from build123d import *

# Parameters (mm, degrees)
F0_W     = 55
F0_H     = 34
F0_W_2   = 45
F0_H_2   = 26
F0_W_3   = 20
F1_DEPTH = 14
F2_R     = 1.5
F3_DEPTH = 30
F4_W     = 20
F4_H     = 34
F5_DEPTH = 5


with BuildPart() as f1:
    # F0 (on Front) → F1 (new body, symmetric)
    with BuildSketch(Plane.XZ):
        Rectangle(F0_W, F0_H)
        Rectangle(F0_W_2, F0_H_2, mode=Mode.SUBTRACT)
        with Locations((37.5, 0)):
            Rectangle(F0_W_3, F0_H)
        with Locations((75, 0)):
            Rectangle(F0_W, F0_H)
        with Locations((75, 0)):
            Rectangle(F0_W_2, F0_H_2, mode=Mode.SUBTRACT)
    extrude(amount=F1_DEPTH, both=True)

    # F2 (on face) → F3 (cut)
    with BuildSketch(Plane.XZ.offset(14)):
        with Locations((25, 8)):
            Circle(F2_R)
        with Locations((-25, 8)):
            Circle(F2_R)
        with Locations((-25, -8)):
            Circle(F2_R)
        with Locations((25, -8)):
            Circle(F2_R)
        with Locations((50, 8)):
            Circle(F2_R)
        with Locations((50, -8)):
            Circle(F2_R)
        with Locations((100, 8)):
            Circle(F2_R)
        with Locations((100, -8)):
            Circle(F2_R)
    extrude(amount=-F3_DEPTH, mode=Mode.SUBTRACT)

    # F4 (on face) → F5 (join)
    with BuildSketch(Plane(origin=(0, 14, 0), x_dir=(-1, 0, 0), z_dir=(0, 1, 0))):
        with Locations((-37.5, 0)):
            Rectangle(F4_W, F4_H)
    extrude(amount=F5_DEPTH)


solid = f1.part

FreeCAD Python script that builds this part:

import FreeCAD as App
import Part
import Sketcher
from FreeCAD import Vector
Q = App.Units.Quantity


def add_polygon(sketch, points):
    """Adds a closed chain of lines whose ends are joined by coincident constraints."""
    first, n = sketch.GeometryCount, len(points)
    for a, b in zip(points, points[1:] + points[:1]):
        sketch.addGeometry(Part.LineSegment(App.Vector(*a, 0), App.Vector(*b, 0)), False)
    for i in range(n):
        sketch.addConstraint(Sketcher.Constraint("Coincident", first + i, 2, first + (i + 1) % n, 1))

doc = App.newDocument("Part")
params = doc.addObject("Spreadsheet::Sheet", "Params")
for row, (alias, value) in enumerate([
    ("sketch1_width", "130 mm"),
    ("sketch1_width2", "45 mm"),
    ("sketch1_height", "34 mm"),
    ("sketch1_height2", "26 mm"),
    ("pad1_length", "28 mm"),
    ("sketch2_diameter", "3 mm"),
    ("pocket1_length", "30 mm"),
    ("sketch3_width", "20 mm"),
    ("sketch3_height", "34 mm"),
    ("pad2_length", "5 mm"),
], start=1):
    params.set(f"A{row}", alias)
    params.set(f"B{row}", "=" + value)
    params.setAlias(f"B{row}", alias)

body = doc.addObject("PartDesign::Body", "Body")

sketch1 = body.newObject("Sketcher::SketchObject", "Sketch")
sketch1.AttachmentSupport = (doc.getObject("XZ_Plane"), [""])
sketch1.MapMode = "FlatFace"
add_polygon(sketch1, [(-28, 17), (-28, -17), (102, -17), (102, 17)])
add_polygon(sketch1, [(22, -13), (-22, -13), (-22, 13), (22, 13)])
add_polygon(sketch1, [(98, -13), (52, -13), (52, 13), (98, 13)])
sketch1.addConstraint([
    Sketcher.Constraint("Vertical", 0),
    Sketcher.Constraint("Horizontal", 1),
    Sketcher.Constraint("Vertical", 2),
    Sketcher.Constraint("Horizontal", 3),
    Sketcher.Constraint("Horizontal", 4),
    Sketcher.Constraint("Vertical", 5),
    Sketcher.Constraint("Horizontal", 6),
    Sketcher.Constraint("Vertical", 7),
    Sketcher.Constraint("Horizontal", 8),
    Sketcher.Constraint("Vertical", 9),
    Sketcher.Constraint("Horizontal", 10),
    Sketcher.Constraint("Vertical", 11),
    Sketcher.Constraint("Symmetric", 4, 2, 6, 2, -1, 1),
    Sketcher.Constraint("Horizontal", 7, 2, 8, 2),
    Sketcher.Constraint("Horizontal", 6, 2, 9, 2),
    Sketcher.Constraint("Equal", 6, 8),
    Sketcher.Constraint("DistanceX", 1, 1, 1, 2, Q("130 mm")),
    Sketcher.Constraint("DistanceX", 4, 2, 4, 1, Q("45 mm")),
    Sketcher.Constraint("DistanceY", 0, 2, 0, 1, Q("34 mm")),
    Sketcher.Constraint("DistanceY", 5, 1, 5, 2, Q("26 mm")),
    Sketcher.Constraint("DistanceY", 0, 2, -1, 1, Q("17 mm")),
    Sketcher.Constraint("DistanceX", 0, 2, 4, 2, Q("5 mm")),
    Sketcher.Constraint("DistanceX", 7, 2, 8, 2, Q("30 mm")),
])
sketch1.setExpression("Constraints[28]", "Params.sketch1_width")
sketch1.setExpression("Constraints[29]", "Params.sketch1_width2")
sketch1.setExpression("Constraints[30]", "Params.sketch1_height")
sketch1.setExpression("Constraints[31]", "Params.sketch1_height2")
pad1 = body.newObject("PartDesign::Pad", "Pad")
pad1.Profile = sketch1
pad1.setExpression("Length", "Params.pad1_length")
pad1.Midplane = True

sketch2 = body.newObject("Sketcher::SketchObject", "Sketch001")
sketch2.AttachmentSupport = (doc.getObject("XZ_Plane"), [""])
sketch2.MapMode = "FlatFace"
sketch2.AttachmentOffset = App.Placement(Vector(0, 0, 14), App.Rotation())
sketch2.addGeometry([
    Part.Circle(Vector(25, 8, 0), Vector(0, 0, 1), 1.5),
    Part.Circle(Vector(-25, 8, 0), Vector(0, 0, 1), 1.5),
    Part.Circle(Vector(-25, -8, 0), Vector(0, 0, 1), 1.5),
    Part.Circle(Vector(25, -8, 0), Vector(0, 0, 1), 1.5),
    Part.Circle(Vector(50, 8, 0), Vector(0, 0, 1), 1.5),
    Part.Circle(Vector(50, -8, 0), Vector(0, 0, 1), 1.5),
    Part.Circle(Vector(100, 8, 0), Vector(0, 0, 1), 1.5),
    Part.Circle(Vector(100, -8, 0), Vector(0, 0, 1), 1.5),
], False)
sketch2.addConstraint([
    Sketcher.Constraint("Equal", 0, 1),
    Sketcher.Constraint("Equal", 1, 2),
    Sketcher.Constraint("Equal", 2, 3),
    Sketcher.Constraint("Equal", 3, 4),
    Sketcher.Constraint("Equal", 4, 5),
    Sketcher.Constraint("Equal", 5, 6),
    Sketcher.Constraint("Equal", 6, 7),
    Sketcher.Constraint("Symmetric", 0, 3, 2, 3, -1, 1),
    Sketcher.Constraint("Symmetric", 1, 3, 3, 3, -1, 1),
    Sketcher.Constraint("Symmetric", 0, 3, 1, 3, -2),
    Sketcher.Constraint("Symmetric", 4, 3, 5, 3, -1),
    Sketcher.Constraint("Symmetric", 6, 3, 7, 3, -1),
    Sketcher.Constraint("Horizontal", 1, 3, 4, 3),
    Sketcher.Constraint("Horizontal", 4, 3, 6, 3),
    Sketcher.Constraint("Diameter", 0, Q("3 mm")),
    Sketcher.Constraint("DistanceX", -1, 1, 0, 3, Q("25 mm")),
    Sketcher.Constraint("DistanceY", -1, 1, 0, 3, Q("8 mm")),
    Sketcher.Constraint("DistanceX", -1, 1, 4, 3, Q("50 mm")),
    Sketcher.Constraint("DistanceX", -1, 1, 6, 3, Q("100 mm")),
])
sketch2.setExpression("Constraints[14]", "Params.sketch2_diameter")
pocket1 = body.newObject("PartDesign::Pocket", "Pocket")
pocket1.Profile = sketch2
pocket1.setExpression("Length", "Params.pocket1_length")

sketch3 = body.newObject("Sketcher::SketchObject", "Sketch002")
sketch3.AttachmentSupport = (doc.getObject("XZ_Plane"), [""])
sketch3.MapMode = "FlatFace"
sketch3.AttachmentOffset = App.Placement(Vector(0, 0, -14), App.Rotation())
add_polygon(sketch3, [(48, 17), (48, -17), (28, -17), (28, 17)])
sketch3.addConstraint([
    Sketcher.Constraint("Vertical", 0),
    Sketcher.Constraint("Horizontal", 1),
    Sketcher.Constraint("Vertical", 2),
    Sketcher.Constraint("Horizontal", 3),
    Sketcher.Constraint("DistanceX", 1, 2, 1, 1, Q("20 mm")),
    Sketcher.Constraint("DistanceY", 0, 2, 0, 1, Q("34 mm")),
    Sketcher.Constraint("DistanceY", 0, 2, -1, 1, Q("17 mm")),
    Sketcher.Constraint("DistanceX", -1, 1, 0, 2, Q("47.5 mm")),
])
sketch3.setExpression("Constraints[8]", "Params.sketch3_width")
sketch3.setExpression("Constraints[9]", "Params.sketch3_height")
pad2 = body.newObject("PartDesign::Pad", "Pad001")
pad2.Profile = sketch3
pad2.setExpression("Length", "Params.pad2_length")
pad2.Reversed = True

doc.recompute()
